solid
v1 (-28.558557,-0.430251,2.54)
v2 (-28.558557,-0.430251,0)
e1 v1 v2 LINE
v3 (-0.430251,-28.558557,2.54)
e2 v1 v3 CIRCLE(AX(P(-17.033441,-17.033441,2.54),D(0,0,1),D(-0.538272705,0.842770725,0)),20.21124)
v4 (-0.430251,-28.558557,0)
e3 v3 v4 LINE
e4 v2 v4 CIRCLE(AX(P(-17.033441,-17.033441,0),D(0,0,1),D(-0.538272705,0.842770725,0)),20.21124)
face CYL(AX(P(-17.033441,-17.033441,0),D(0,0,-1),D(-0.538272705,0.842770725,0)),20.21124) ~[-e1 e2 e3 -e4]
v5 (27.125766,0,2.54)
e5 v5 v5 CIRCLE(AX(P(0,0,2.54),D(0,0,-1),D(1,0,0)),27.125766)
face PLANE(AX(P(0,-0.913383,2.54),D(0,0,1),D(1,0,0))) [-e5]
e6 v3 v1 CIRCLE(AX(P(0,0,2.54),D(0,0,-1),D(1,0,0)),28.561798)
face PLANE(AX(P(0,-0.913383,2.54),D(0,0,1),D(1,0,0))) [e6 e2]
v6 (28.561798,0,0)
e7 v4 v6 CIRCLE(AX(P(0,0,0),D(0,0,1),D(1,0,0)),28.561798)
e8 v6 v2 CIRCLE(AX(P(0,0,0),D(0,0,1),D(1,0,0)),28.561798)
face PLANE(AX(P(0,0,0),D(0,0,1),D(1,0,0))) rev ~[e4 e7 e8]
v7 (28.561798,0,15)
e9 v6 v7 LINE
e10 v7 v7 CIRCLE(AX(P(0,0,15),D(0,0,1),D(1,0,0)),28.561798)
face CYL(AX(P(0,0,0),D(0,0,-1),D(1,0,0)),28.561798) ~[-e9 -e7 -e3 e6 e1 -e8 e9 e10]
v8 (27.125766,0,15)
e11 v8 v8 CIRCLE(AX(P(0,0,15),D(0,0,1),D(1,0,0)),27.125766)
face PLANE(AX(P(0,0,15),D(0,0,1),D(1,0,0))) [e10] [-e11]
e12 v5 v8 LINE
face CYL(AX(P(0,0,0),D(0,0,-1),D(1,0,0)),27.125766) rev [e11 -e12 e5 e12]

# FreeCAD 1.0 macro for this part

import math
import FreeCAD as App
import Part
import Sketcher

V = App.Vector

doc = App.newDocument("Part")
body = doc.addObject("PartDesign::Body", "Body")

sketch1 = body.newObject("Sketcher::SketchObject", "Sketch")
sketch1.AttachmentSupport = (doc.getObject("XY_Plane"), [""])
sketch1.MapMode = "FlatFace"
sketch1.addGeometry(Part.Circle(V(0, 0, 0), V(0, 0, 1), 29), False)
sketch1.addGeometry(Part.Circle(V(0, 0, 0), V(0, 0, 1), 27), False)
sketch1.addConstraint(Sketcher.Constraint("Coincident", 0, 3, -1, 1))
sketch1.addConstraint(Sketcher.Constraint("Coincident", 1, 3, -1, 1))
sketch1.addConstraint(Sketcher.Constraint("Diameter", 1, 54.251532))
sketch1.addConstraint(Sketcher.Constraint("Diameter", 0, 57.123596))
pad1 = body.newObject("PartDesign::Pad", "Pad")
pad1.Profile = sketch1
pad1.Length = 15

sketch2 = body.newObject("Sketcher::SketchObject", "Sketch001")
sketch2.AttachmentSupport = (doc.getObject("XY_Plane"), [""])
sketch2.MapMode = "FlatFace"
sketch2.addGeometry(Part.ArcOfCircle(Part.Circle(V(0, 0, 0), V(0, 0, 1), 28), math.radians(-90), math.radians(0)), False)
sketch2.addGeometry(Part.ArcOfCircle(Part.Circle(V(0, 0, 0), V(0, 0, 1), 28), math.radians(0), math.radians(180)), False)
sketch2.addGeometry(Part.ArcOfCircle(Part.Circle(V(-17, -17, 0), V(0, 0, 1), 20), math.radians(123), math.radians(327)), False)
sketch2.addConstraint(Sketcher.Constraint("Tangent", 0, 2, 1, 1))
sketch2.addConstraint(Sketcher.Constraint("Coincident", 1, 2, 2, 1))
sketch2.addConstraint(Sketcher.Constraint("Coincident", 2, 2, 0, 1))
sketch2.addConstraint(Sketcher.Constraint("Coincident", 0, 3, -1, 1))
sketch2.addConstraint(Sketcher.Constraint("Equal", 0, 1))
sketch2.addConstraint(Sketcher.Constraint("PointOnObject", 0, 2, -1))
sketch2.addConstraint(Sketcher.Constraint("PointOnObject", 1, 2, -1))
sketch2.addConstraint(Sketcher.Constraint("PointOnObject", 2, 2, -2))
sketch2.addConstraint(Sketcher.Constraint("Radius", 0, 27.912599))
sketch2.addConstraint(Sketcher.Constraint("Radius", 2, 20.21124))
pad2 = body.newObject("PartDesign::Pad", "Pad001")
pad2.Profile = sketch2
pad2.Length = 2.54

doc.recompute()
